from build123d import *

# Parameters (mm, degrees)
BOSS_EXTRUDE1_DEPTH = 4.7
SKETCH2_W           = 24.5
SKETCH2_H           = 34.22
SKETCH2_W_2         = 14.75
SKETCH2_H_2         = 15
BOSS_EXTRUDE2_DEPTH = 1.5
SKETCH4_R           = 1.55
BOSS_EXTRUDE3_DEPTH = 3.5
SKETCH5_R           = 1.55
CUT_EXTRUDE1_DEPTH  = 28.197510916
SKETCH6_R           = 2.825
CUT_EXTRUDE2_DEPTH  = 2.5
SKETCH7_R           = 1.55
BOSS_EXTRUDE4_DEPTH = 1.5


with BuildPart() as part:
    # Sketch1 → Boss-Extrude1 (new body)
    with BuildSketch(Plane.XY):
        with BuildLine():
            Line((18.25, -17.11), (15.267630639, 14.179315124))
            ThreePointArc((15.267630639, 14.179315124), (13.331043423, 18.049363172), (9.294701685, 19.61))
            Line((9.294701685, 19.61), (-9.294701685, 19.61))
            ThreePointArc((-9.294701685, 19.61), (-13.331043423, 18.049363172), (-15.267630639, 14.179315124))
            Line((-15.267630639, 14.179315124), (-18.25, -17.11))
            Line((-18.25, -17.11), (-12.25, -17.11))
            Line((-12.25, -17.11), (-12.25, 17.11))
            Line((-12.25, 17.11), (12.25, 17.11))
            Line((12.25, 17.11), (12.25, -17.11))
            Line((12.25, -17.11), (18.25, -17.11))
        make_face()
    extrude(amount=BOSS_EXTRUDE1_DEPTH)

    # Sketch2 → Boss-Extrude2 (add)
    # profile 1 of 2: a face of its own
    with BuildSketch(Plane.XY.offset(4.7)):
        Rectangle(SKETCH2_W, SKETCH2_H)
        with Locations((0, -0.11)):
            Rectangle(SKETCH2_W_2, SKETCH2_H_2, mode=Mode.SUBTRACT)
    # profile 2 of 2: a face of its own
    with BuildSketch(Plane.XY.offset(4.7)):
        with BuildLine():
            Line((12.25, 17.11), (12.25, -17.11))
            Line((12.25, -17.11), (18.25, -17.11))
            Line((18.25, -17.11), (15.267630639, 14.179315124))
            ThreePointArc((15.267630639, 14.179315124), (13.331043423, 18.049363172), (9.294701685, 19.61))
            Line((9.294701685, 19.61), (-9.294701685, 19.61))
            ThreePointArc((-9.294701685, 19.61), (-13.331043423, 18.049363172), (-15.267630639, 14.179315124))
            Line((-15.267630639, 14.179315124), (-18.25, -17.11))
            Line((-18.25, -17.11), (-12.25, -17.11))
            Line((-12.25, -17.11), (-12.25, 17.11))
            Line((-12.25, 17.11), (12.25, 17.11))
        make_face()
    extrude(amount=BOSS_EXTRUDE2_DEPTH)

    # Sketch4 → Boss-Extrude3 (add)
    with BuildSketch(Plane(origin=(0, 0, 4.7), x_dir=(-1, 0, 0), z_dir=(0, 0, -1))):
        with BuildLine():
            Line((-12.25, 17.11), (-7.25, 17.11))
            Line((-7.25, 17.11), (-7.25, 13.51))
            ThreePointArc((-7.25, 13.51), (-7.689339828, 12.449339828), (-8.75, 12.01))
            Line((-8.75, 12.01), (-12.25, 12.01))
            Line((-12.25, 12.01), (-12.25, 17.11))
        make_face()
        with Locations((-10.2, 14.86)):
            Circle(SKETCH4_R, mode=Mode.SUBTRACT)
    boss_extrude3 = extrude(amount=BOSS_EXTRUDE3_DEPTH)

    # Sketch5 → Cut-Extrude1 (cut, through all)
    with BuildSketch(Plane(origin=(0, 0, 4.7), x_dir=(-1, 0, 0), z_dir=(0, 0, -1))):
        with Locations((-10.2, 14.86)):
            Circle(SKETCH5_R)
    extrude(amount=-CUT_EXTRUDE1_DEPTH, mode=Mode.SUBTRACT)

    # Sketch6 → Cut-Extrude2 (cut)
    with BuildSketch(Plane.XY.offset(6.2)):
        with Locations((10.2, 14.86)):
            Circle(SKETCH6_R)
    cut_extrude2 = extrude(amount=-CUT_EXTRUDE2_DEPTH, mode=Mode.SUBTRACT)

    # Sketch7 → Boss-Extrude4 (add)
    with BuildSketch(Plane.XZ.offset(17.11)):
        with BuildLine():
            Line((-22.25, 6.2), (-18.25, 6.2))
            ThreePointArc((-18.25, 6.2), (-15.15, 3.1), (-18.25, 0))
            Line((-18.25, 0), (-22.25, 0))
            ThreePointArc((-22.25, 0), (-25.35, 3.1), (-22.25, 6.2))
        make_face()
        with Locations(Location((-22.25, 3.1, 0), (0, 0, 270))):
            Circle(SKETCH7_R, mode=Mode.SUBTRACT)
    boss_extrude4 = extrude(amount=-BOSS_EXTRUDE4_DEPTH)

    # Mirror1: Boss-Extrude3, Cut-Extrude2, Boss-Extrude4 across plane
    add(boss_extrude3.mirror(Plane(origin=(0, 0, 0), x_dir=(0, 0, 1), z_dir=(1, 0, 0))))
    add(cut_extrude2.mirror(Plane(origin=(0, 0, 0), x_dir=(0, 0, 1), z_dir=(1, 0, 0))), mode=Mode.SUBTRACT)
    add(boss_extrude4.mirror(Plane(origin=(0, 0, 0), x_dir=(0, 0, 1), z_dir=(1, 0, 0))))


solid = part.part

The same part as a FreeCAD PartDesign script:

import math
import FreeCAD as App
import Part
import Sketcher

V = App.Vector

doc = App.newDocument("Part")
body = doc.addObject("PartDesign::Body", "Body")

# Sketch on XY plane
sketch1 = body.newObject("Sketcher::SketchObject", "Sketch")
sketch1.AttachmentSupport = (doc.getObject("XY_Plane"), [""])
sketch1.MapMode = "FlatFace"
sketch1.addGeometry(Part.LineSegment(V(18, -17, 0), V(15, 14, 0)), False)
sketch1.addGeometry(Part.ArcOfCircle(Part.Circle(V(9, 14, 0), V(0, 0, 1), 6), math.radians(5), math.radians(90)), False)
sketch1.addGeometry(Part.LineSegment(V(9, 20, 0), V(-9, 20, 0)), False)
sketch1.addGeometry(Part.ArcOfCircle(Part.Circle(V(-9, 14, 0), V(0, 0, 1), 6), math.radians(90), math.radians(175)), False)
sketch1.addGeometry(Part.LineSegment(V(-15, 14, 0), V(-18, -17, 0)), False)
sketch1.addGeometry(Part.LineSegment(V(-18, -17, 0), V(-12, -17, 0)), False)
sketch1.addGeometry(Part.LineSegment(V(-12, -17, 0), V(-12, 17, 0)), False)
sketch1.addGeometry(Part.LineSegment(V(-12, 17, 0), V(12, 17, 0)), False)
sketch1.addGeometry(Part.LineSegment(V(12, 17, 0), V(12, -17, 0)), False)
sketch1.addGeometry(Part.LineSegment(V(12, -17, 0), V(18, -17, 0)), False)
sketch1.addConstraint(Sketcher.Constraint("Tangent", 0, 2, 1, 1))
sketch1.addConstraint(Sketcher.Constraint("Tangent", 1, 2, 2, 1))
sketch1.addConstraint(Sketcher.Constraint("Tangent", 2, 2, 3, 1))
sketch1.addConstraint(Sketcher.Constraint("Tangent", 3, 2, 4, 1))
sketch1.addConstraint(Sketcher.Constraint("Coincident", 4, 2, 5, 1))
sketch1.addConstraint(Sketcher.Constraint("Coincident", 5, 2, 6, 1))
sketch1.addConstraint(Sketcher.Constraint("Coincident", 6, 2, 7, 1))
sketch1.addConstraint(Sketcher.Constraint("Coincident", 7, 2, 8, 1))
sketch1.addConstraint(Sketcher.Constraint("Coincident", 8, 2, 9, 1))
sketch1.addConstraint(Sketcher.Constraint("Coincident", 9, 2, 0, 1))
sketch1.addConstraint(Sketcher.Constraint("Horizontal", 2))
sketch1.addConstraint(Sketcher.Constraint("Horizontal", 5))
sketch1.addConstraint(Sketcher.Constraint("Vertical", 6))
sketch1.addConstraint(Sketcher.Constraint("Horizontal", 7))
sketch1.addConstraint(Sketcher.Constraint("Vertical", 8))
sketch1.addConstraint(Sketcher.Constraint("Horizontal", 9))
sketch1.addConstraint(Sketcher.Constraint("Equal", 1, 3))
sketch1.addConstraint(Sketcher.Constraint("Symmetric", 5, 2, 7, 2, -1, 1))
sketch1.addConstraint(Sketcher.Constraint("Symmetric", 0, 2, 3, 2, -2))
sketch1.addConstraint(Sketcher.Constraint("Horizontal", 5, 2, 8, 2))
sketch1.addConstraint(Sketcher.Constraint("Radius", 1, 6.0))
sketch1.addConstraint(Sketcher.Constraint("DistanceX", 5, 1, 5, 2, 6.0))
sketch1.addConstraint(Sketcher.Constraint("DistanceX", 7, 1, 7, 2, 24.5))
sketch1.addConstraint(Sketcher.Constraint("DistanceY", 6, 1, 6, 2, 34.22))
sketch1.addConstraint(Sketcher.Constraint("DistanceY", 6, 2, 2, 2, 2.5))
sketch1.addConstraint(Sketcher.Constraint("DistanceX", -1, 1, 1, 3, 9.294702))
pad1 = body.newObject("PartDesign::Pad", "Pad")
pad1.Profile = sketch1
pad1.Length = 4.7

# Sketch on XY plane
sketch2 = body.newObject("Sketcher::SketchObject", "Sketch001")
sketch2.AttachmentSupport = (doc.getObject("XY_Plane"), [""])
sketch2.MapMode = "FlatFace"
sketch2.AttachmentOffset = App.Placement(V(0, 0, 4.7), App.Rotation())
sketch2.addGeometry(Part.LineSegment(V(18, -17, 0), V(15, 14, 0)), False)
sketch2.addGeometry(Part.ArcOfCircle(Part.Circle(V(9, 14, 0), V(0, 0, 1), 6), math.radians(5), math.radians(90)), False)
sketch2.addGeometry(Part.LineSegment(V(9, 20, 0), V(-9, 20, 0)), False)
sketch2.addGeometry(Part.ArcOfCircle(Part.Circle(V(-9, 14, 0), V(0, 0, 1), 6), math.radians(90), math.radians(175)), False)
sketch2.addGeometry(Part.LineSegment(V(-15, 14, 0), V(-18, -17, 0)), False)
sketch2.addGeometry(Part.LineSegment(V(-18, -17, 0), V(18, -17, 0)), False)
sketch2.addGeometry(Part.LineSegment(V(7, -8, 0), V(-7, -8, 0)), False)
sketch2.addGeometry(Part.LineSegment(V(-7, -8, 0), V(-7, 7, 0)), False)
sketch2.addGeometry(Part.LineSegment(V(-7, 7, 0), V(7, 7, 0)), False)
sketch2.addGeometry(Part.LineSegment(V(7, 7, 0), V(7, -8, 0)), False)
sketch2.addConstraint(Sketcher.Constraint("Tangent", 0, 2, 1, 1))
sketch2.addConstraint(Sketcher.Constraint("Tangent", 1, 2, 2, 1))
sketch2.addConstraint(Sketcher.Constraint("Tangent", 2, 2, 3, 1))
sketch2.addConstraint(Sketcher.Constraint("Tangent", 3, 2, 4, 1))
sketch2.addConstraint(Sketcher.Constraint("Coincident", 4, 2, 5, 1))
sketch2.addConstraint(Sketcher.Constraint("Coincident", 5, 2, 0, 1))
sketch2.addConstraint(Sketcher.Constraint("Coincident", 6, 2, 7, 1))
sketch2.addConstraint(Sketcher.Constraint("Coincident", 7, 2, 8, 1))
sketch2.addConstraint(Sketcher.Constraint("Coincident", 8, 2, 9, 1))
sketch2.addConstraint(Sketcher.Constraint("Coincident", 9, 2, 6, 1))
sketch2.addConstraint(Sketcher.Constraint("Horizontal", 2))
sketch2.addConstraint(Sketcher.Constraint("Horizontal", 5))
sketch2.addConstraint(Sketcher.Constraint("Horizontal", 6))
sketch2.addConstraint(Sketcher.Constraint("Vertical", 7))
sketch2.addConstraint(Sketcher.Constraint("Horizontal", 8))
sketch2.addConstraint(Sketcher.Constraint("Vertical", 9))
sketch2.addConstraint(Sketcher.Constraint("Equal", 1, 3))
sketch2.addConstraint(Sketcher.Constraint("Symmetric", 0, 2, 3, 2, -2))
sketch2.addConstraint(Sketcher.Constraint("Radius", 1, 6.0))
sketch2.addConstraint(Sketcher.Constraint("DistanceY", 7, 1, 7, 2, 15.0))
sketch2.addConstraint(Sketcher.Constraint("DistanceX", 5, 1, 5, 2, 36.5))
sketch2.addConstraint(Sketcher.Constraint("DistanceX", 6, 2, 6, 1, 14.75))
sketch2.addConstraint(Sketcher.Constraint("DistanceY", 4, 2, 6, 2, 9.5))
sketch2.addConstraint(Sketcher.Constraint("DistanceY", -1, 1, 1, 3, 13.61))
sketch2.addConstraint(Sketcher.Constraint("DistanceY", 4, 2, -1, 1, 17.11))
sketch2.addConstraint(Sketcher.Constraint("DistanceX", 6, 2, -1, 1, 7.375))
sketch2.addConstraint(Sketcher.Constraint("DistanceX", -1, 1, 1, 3, 9.294702))
pad2 = body.newObject("PartDesign::Pad", "Pad001")
pad2.Profile = sketch2
pad2.Length = 1.5

# Sketch on XY plane
sketch3 = body.newObject("Sketcher::SketchObject", "Sketch002")
sketch3.AttachmentSupport = (doc.getObject("XY_Plane"), [""])
sketch3.MapMode = "FlatFace"
sketch3.AttachmentOffset = App.Placement(V(0, 0, 4.7), App.Rotation())
sketch3.addGeometry(Part.LineSegment(V(7.2, 17.1, 0), V(12.2, 17.1, 0)), False)
sketch3.addGeometry(Part.LineSegment(V(12.2, 17.1, 0), V(12.2, 12, 0)), False)
sketch3.addGeometry(Part.LineSegment(V(12.2, 12, 0), V(8.8, 12, 0)), False)
sketch3.addGeometry(Part.ArcOfCircle(Part.Circle(V(8.7, 13.5, 0), V(0, 0, 1), 1.5), math.radians(180), math.radians(270)), False)
sketch3.addGeometry(Part.LineSegment(V(7.2, 13.5, 0), V(7.2, 17.1, 0)), False)
sketch3.addGeometry(Part.Circle(V(10.2, 14.9, 0), V(0, 0, 1), 1.6), False)
sketch3.addConstraint(Sketcher.Constraint("Coincident", 0, 2, 1, 1))
sketch3.addConstraint(Sketcher.Constraint("Coincident", 1, 2, 2, 1))
sketch3.addConstraint(Sketcher.Constraint("Tangent", 2, 2, 3, 2))
sketch3.addConstraint(Sketcher.Constraint("Tangent", 3, 1, 4, 1))
sketch3.addConstraint(Sketcher.Constraint("Coincident", 4, 2, 0, 1))
sketch3.addConstraint(Sketcher.Constraint("Horizontal", 0))
sketch3.addConstraint(Sketcher.Constraint("Vertical", 1))
sketch3.addConstraint(Sketcher.Constraint("Horizontal", 2))
sketch3.addConstraint(Sketcher.Constraint("Vertical", 4))
sketch3.addConstraint(Sketcher.Constraint("Diameter", 5, 3.1))
sketch3.addConstraint(Sketcher.Constraint("Radius", 3, 1.5))
sketch3.addConstraint(Sketcher.Constraint("DistanceX", 0, 1, 0, 2, 5.0))
sketch3.addConstraint(Sketcher.Constraint("DistanceY", 1, 2, 1, 1, 5.1))
sketch3.addConstraint(Sketcher.Constraint("DistanceX", -1, 1, 5, 3, 10.2))
sketch3.addConstraint(Sketcher.Constraint("DistanceX", -1, 1, 3, 3, 8.75))
sketch3.addConstraint(Sketcher.Constraint("DistanceY", -1, 1, 3, 3, 13.51))
sketch3.addConstraint(Sketcher.Constraint("DistanceY", -1, 1, 5, 3, 14.86))
pad3 = body.newObject("PartDesign::Pad", "Pad002")
pad3.Profile = sketch3
pad3.Length = 3.5
pad3.Reversed = True

# Sketch on XY plane
sketch4 = body.newObject("Sketcher::SketchObject", "Sketch003")
sketch4.AttachmentSupport = (doc.getObject("XY_Plane"), [""])
sketch4.MapMode = "FlatFace"
sketch4.AttachmentOffset = App.Placement(V(0, 0, 4.7), App.Rotation())
sketch4.addGeometry(Part.Circle(V(10.2, 14.9, 0), V(0, 0, 1), 1.6), False)
sketch4.addConstraint(Sketcher.Constraint("Diameter", 0, 3.1))
sketch4.addConstraint(Sketcher.Constraint("DistanceX", -1, 1, 0, 3, 10.2))
sketch4.addConstraint(Sketcher.Constraint("DistanceY", -1, 1, 0, 3, 14.86))
pocket1 = body.newObject("PartDesign::Pocket", "Pocket")
pocket1.Profile = sketch4
pocket1.Type = "ThroughAll"
pocket1.Reversed = True

# Sketch on XY plane
sketch5 = body.newObject("Sketcher::SketchObject", "Sketch004")
sketch5.AttachmentSupport = (doc.getObject("XY_Plane"), [""])
sketch5.MapMode = "FlatFace"
sketch5.AttachmentOffset = App.Placement(V(0, 0, 6.2), App.Rotation())
sketch5.addGeometry(Part.Circle(V(10.2, 14.9, 0), V(0, 0, 1), 2.8), False)
sketch5.addConstraint(Sketcher.Constraint("Diameter", 0, 5.65))
sketch5.addConstraint(Sketcher.Constraint("DistanceX", -1, 1, 0, 3, 10.2))
sketch5.addConstraint(Sketcher.Constraint("DistanceY", -1, 1, 0, 3, 14.86))
pocket2 = body.newObject("PartDesign::Pocket", "Pocket001")
pocket2.Profile = sketch5
pocket2.Length = 2.5

# Sketch on XZ plane
sketch6 = body.newObject("Sketcher::SketchObject", "Sketch005")
sketch6.AttachmentSupport = (doc.getObject("XZ_Plane"), [""])
sketch6.MapMode = "FlatFace"
sketch6.AttachmentOffset = App.Placement(V(0, 0, 17.11), App.Rotation())
sketch6.addGeometry(Part.LineSegment(V(-18.2, 6.2, 0), V(-22.2, 6.2, 0)), False)
sketch6.addGeometry(Part.ArcOfCircle(Part.Circle(V(-22.2, 3.1, 0), V(0, 0, 1), 3.1), math.radians(90), math.radians(270)), False)
sketch6.addGeometry(Part.LineSegment(V(-22.2, 0, 0), V(-18.2, 0, 0)), False)
sketch6.addGeometry(Part.ArcOfCircle(Part.Circle(V(-18.2, 3.1, 0), V(0, 0, 1), 3.1), math.radians(-90), math.radians(90)), False)
sketch6.addGeometry(Part.Circle(V(-22.2, 3.1, 0), V(0, 0, 1), 1.6), False)
sketch6.addConstraint(Sketcher.Constraint("Tangent", 0, 2, 1, 1))
sketch6.addConstraint(Sketcher.Constraint("Tangent", 1, 2, 2, 1))
sketch6.addConstraint(Sketcher.Constraint("Tangent", 2, 2, 3, 1))
sketch6.addConstraint(Sketcher.Constraint("Tangent", 3, 2, 0, 1))
sketch6.addConstraint(Sketcher.Constraint("Horizontal", 0))
sketch6.addConstraint(Sketcher.Constraint("Horizontal", 2))
sketch6.addConstraint(Sketcher.Constraint("Coincident", 4, 3, 1, 3))
sketch6.addConstraint(Sketcher.Constraint("PointOnObject", 1, 2, -1))
sketch6.addConstraint(Sketcher.Constraint("Diameter", 4, 3.1))
sketch6.addConstraint(Sketcher.Constraint("Radius", 1, 3.1))
sketch6.addConstraint(Sketcher.Constraint("DistanceX", 0, 2, 0, 1, 4.0))
sketch6.addConstraint(Sketcher.Constraint("DistanceX", 1, 3, -1, 1, 22.25))
pad4 = body.newObject("PartDesign::Pad", "Pad003")
pad4.Profile = sketch6
pad4.Length = 1.5
pad4.Reversed = True
doc.recompute()

mirrored = body.newObject("PartDesign::Mirrored", "Mirrored")
mirrored.Originals = [pad3, pocket2, pad4]
mirrored.MirrorPlane = (doc.getObject("YZ_Plane"), [""])
body.Tip = mirrored

doc.recompute()
